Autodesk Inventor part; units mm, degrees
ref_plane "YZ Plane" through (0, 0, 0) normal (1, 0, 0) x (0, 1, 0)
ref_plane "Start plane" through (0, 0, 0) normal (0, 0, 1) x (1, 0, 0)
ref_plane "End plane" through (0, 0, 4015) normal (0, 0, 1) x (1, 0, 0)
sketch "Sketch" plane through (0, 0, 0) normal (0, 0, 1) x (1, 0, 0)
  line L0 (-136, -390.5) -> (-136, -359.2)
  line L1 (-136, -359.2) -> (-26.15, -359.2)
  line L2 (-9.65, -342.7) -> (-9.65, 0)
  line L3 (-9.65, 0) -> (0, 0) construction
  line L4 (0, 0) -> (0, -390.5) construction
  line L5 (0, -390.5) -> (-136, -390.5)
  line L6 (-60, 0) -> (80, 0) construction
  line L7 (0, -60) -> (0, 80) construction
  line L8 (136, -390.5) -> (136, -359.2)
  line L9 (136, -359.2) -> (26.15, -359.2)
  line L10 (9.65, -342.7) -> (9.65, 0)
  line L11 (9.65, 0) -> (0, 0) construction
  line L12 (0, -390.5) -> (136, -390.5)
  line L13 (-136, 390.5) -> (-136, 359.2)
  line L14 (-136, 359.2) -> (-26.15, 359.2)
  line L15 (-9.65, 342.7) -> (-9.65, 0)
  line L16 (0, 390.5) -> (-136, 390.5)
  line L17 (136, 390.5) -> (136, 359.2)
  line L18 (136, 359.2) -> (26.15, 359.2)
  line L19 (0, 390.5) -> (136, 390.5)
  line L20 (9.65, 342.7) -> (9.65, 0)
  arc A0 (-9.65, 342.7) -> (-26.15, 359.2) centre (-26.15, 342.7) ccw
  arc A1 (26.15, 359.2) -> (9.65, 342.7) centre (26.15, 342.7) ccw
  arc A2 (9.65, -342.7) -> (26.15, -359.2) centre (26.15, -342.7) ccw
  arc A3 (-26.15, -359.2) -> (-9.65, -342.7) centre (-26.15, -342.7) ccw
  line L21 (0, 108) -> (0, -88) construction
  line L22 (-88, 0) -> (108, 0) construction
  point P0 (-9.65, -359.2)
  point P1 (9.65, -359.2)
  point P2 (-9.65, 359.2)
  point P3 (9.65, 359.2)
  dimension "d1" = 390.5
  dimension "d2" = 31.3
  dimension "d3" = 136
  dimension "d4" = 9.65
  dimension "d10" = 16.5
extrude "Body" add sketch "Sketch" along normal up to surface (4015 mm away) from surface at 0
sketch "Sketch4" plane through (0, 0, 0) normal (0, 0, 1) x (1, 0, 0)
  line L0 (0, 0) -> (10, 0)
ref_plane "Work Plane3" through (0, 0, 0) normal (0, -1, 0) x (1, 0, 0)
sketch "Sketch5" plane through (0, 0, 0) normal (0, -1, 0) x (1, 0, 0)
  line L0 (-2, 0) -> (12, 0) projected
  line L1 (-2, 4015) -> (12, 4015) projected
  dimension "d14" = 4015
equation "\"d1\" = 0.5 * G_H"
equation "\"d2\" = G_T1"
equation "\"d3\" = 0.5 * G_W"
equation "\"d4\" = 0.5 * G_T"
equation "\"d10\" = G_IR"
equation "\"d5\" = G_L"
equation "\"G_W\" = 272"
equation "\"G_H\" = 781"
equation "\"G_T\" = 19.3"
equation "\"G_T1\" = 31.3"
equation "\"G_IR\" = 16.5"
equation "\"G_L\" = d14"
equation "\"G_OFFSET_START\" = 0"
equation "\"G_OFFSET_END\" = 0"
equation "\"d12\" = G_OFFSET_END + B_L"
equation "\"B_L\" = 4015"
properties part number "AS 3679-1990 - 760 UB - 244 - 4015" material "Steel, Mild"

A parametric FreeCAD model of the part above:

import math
import FreeCAD as App
import Part
import Sketcher

doc = App.newDocument("Part")
body = doc.addObject("PartDesign::Body", "Body")

# Sketch on XY plane
sketch1 = body.newObject("Sketcher::SketchObject", "Sketch")
sketch1.AttachmentSupport = (doc.getObject("XY_Plane"), [""])
sketch1.MapMode = "FlatFace"
sketch1.addGeometry(Part.LineSegment(App.Vector(-136, -359, 0), App.Vector(-136, -390, 0)), False)
sketch1.addGeometry(Part.LineSegment(App.Vector(-136, -390, 0), App.Vector(136, -390, 0)), False)
sketch1.addGeometry(Part.LineSegment(App.Vector(136, -390, 0), App.Vector(136, -359, 0)), False)
sketch1.addGeometry(Part.LineSegment(App.Vector(136, -359, 0), App.Vector(26, -359, 0)), False)
sketch1.addGeometry(Part.ArcOfCircle(Part.Circle(App.Vector(26, -343, 0), App.Vector(0, 0, 1), 16), math.radians(180), math.radians(270)), False)
sketch1.addGeometry(Part.LineSegment(App.Vector(10, -343, 0), App.Vector(10, 343, 0)), False)
sketch1.addGeometry(Part.ArcOfCircle(Part.Circle(App.Vector(26, 343, 0), App.Vector(0, 0, 1), 16), math.radians(90), math.radians(180)), False)
sketch1.addGeometry(Part.LineSegment(App.Vector(26, 359, 0), App.Vector(136, 359, 0)), False)
sketch1.addGeometry(Part.LineSegment(App.Vector(136, 359, 0), App.Vector(136, 390, 0)), False)
sketch1.addGeometry(Part.LineSegment(App.Vector(136, 390, 0), App.Vector(-136, 390, 0)), False)
sketch1.addGeometry(Part.LineSegment(App.Vector(-136, 390, 0), App.Vector(-136, 359, 0)), False)
sketch1.addGeometry(Part.LineSegment(App.Vector(-136, 359, 0), App.Vector(-26, 359, 0)), False)
sketch1.addGeometry(Part.ArcOfCircle(Part.Circle(App.Vector(-26, 343, 0), App.Vector(0, 0, 1), 16), math.radians(0), math.radians(90)), False)
sketch1.addGeometry(Part.LineSegment(App.Vector(-10, 343, 0), App.Vector(-10, -343, 0)), False)
sketch1.addGeometry(Part.ArcOfCircle(Part.Circle(App.Vector(-26, -343, 0), App.Vector(0, 0, 1), 16), math.radians(-90), math.radians(0)), False)
sketch1.addGeometry(Part.LineSegment(App.Vector(-26, -359, 0), App.Vector(-136, -359, 0)), False)
sketch1.addConstraint(Sketcher.Constraint("Coincident", 0, 2, 1, 1))
sketch1.addConstraint(Sketcher.Constraint("Coincident", 1, 2, 2, 1))
sketch1.addConstraint(Sketcher.Constraint("Coincident", 2, 2, 3, 1))
sketch1.addConstraint(Sketcher.Constraint("Tangent", 3, 2, 4, 2))
sketch1.addConstraint(Sketcher.Constraint("Tangent", 4, 1, 5, 1))
sketch1.addConstraint(Sketcher.Constraint("Tangent", 5, 2, 6, 2))
sketch1.addConstraint(Sketcher.Constraint("Tangent", 6, 1, 7, 1))
sketch1.addConstraint(Sketcher.Constraint("Coincident", 7, 2, 8, 1))
sketch1.addConstraint(Sketcher.Constraint("Coincident", 8, 2, 9, 1))
sketch1.addConstraint(Sketcher.Constraint("Coincident", 9, 2, 10, 1))
sketch1.addConstraint(Sketcher.Constraint("Coincident", 10, 2, 11, 1))
sketch1.addConstraint(Sketcher.Constraint("Tangent", 11, 2, 12, 2))
sketch1.addConstraint(Sketcher.Constraint("Tangent", 12, 1, 13, 1))
sketch1.addConstraint(Sketcher.Constraint("Tangent", 13, 2, 14, 2))
sketch1.addConstraint(Sketcher.Constraint("Tangent", 14, 1, 15, 1))
sketch1.addConstraint(Sketcher.Constraint("Coincident", 15, 2, 0, 1))
sketch1.addConstraint(Sketcher.Constraint("Vertical", 0))
sketch1.addConstraint(Sketcher.Constraint("Horizontal", 1))
sketch1.addConstraint(Sketcher.Constraint("Vertical", 2))
sketch1.addConstraint(Sketcher.Constraint("Horizontal", 3))
sketch1.addConstraint(Sketcher.Constraint("Vertical", 5))
sketch1.addConstraint(Sketcher.Constraint("Horizontal", 7))
sketch1.addConstraint(Sketcher.Constraint("Vertical", 8))
sketch1.addConstraint(Sketcher.Constraint("Horizontal", 9))
sketch1.addConstraint(Sketcher.Constraint("Vertical", 10))
sketch1.addConstraint(Sketcher.Constraint("Horizontal", 11))
sketch1.addConstraint(Sketcher.Constraint("Vertical", 13))
sketch1.addConstraint(Sketcher.Constraint("Horizontal", 15))
sketch1.addConstraint(Sketcher.Constraint("Equal", 4, 6))
sketch1.addConstraint(Sketcher.Constraint("Equal", 6, 12))
sketch1.addConstraint(Sketcher.Constraint("Equal", 12, 14))
sketch1.addConstraint(Sketcher.Constraint("Symmetric", 4, 3, 12, 3, -1, 1))
sketch1.addConstraint(Sketcher.Constraint("Symmetric", 0, 2, 8, 2, -1, 1))
sketch1.addConstraint(Sketcher.Constraint("Symmetric", 7, 2, 10, 2, -2))
sketch1.addConstraint(Sketcher.Constraint("Symmetric", 2, 2, 15, 2, -2))
sketch1.addConstraint(Sketcher.Constraint("Radius", 4, 16.5))
sketch1.addConstraint(Sketcher.Constraint("DistanceY", 0, 2, 0, 1, 31.3))
sketch1.addConstraint(Sketcher.Constraint("DistanceX", 0, 2, -1, 1, 136.0))
sketch1.addConstraint(Sketcher.Constraint("DistanceY", 0, 2, -1, 1, 390.5))
sketch1.addConstraint(Sketcher.Constraint("DistanceX", -1, 1, 4, 1, 9.65))
pad1 = body.newObject("PartDesign::Pad", "Pad")
pad1.Profile = sketch1
pad1.Length = 4015

doc.recompute()
